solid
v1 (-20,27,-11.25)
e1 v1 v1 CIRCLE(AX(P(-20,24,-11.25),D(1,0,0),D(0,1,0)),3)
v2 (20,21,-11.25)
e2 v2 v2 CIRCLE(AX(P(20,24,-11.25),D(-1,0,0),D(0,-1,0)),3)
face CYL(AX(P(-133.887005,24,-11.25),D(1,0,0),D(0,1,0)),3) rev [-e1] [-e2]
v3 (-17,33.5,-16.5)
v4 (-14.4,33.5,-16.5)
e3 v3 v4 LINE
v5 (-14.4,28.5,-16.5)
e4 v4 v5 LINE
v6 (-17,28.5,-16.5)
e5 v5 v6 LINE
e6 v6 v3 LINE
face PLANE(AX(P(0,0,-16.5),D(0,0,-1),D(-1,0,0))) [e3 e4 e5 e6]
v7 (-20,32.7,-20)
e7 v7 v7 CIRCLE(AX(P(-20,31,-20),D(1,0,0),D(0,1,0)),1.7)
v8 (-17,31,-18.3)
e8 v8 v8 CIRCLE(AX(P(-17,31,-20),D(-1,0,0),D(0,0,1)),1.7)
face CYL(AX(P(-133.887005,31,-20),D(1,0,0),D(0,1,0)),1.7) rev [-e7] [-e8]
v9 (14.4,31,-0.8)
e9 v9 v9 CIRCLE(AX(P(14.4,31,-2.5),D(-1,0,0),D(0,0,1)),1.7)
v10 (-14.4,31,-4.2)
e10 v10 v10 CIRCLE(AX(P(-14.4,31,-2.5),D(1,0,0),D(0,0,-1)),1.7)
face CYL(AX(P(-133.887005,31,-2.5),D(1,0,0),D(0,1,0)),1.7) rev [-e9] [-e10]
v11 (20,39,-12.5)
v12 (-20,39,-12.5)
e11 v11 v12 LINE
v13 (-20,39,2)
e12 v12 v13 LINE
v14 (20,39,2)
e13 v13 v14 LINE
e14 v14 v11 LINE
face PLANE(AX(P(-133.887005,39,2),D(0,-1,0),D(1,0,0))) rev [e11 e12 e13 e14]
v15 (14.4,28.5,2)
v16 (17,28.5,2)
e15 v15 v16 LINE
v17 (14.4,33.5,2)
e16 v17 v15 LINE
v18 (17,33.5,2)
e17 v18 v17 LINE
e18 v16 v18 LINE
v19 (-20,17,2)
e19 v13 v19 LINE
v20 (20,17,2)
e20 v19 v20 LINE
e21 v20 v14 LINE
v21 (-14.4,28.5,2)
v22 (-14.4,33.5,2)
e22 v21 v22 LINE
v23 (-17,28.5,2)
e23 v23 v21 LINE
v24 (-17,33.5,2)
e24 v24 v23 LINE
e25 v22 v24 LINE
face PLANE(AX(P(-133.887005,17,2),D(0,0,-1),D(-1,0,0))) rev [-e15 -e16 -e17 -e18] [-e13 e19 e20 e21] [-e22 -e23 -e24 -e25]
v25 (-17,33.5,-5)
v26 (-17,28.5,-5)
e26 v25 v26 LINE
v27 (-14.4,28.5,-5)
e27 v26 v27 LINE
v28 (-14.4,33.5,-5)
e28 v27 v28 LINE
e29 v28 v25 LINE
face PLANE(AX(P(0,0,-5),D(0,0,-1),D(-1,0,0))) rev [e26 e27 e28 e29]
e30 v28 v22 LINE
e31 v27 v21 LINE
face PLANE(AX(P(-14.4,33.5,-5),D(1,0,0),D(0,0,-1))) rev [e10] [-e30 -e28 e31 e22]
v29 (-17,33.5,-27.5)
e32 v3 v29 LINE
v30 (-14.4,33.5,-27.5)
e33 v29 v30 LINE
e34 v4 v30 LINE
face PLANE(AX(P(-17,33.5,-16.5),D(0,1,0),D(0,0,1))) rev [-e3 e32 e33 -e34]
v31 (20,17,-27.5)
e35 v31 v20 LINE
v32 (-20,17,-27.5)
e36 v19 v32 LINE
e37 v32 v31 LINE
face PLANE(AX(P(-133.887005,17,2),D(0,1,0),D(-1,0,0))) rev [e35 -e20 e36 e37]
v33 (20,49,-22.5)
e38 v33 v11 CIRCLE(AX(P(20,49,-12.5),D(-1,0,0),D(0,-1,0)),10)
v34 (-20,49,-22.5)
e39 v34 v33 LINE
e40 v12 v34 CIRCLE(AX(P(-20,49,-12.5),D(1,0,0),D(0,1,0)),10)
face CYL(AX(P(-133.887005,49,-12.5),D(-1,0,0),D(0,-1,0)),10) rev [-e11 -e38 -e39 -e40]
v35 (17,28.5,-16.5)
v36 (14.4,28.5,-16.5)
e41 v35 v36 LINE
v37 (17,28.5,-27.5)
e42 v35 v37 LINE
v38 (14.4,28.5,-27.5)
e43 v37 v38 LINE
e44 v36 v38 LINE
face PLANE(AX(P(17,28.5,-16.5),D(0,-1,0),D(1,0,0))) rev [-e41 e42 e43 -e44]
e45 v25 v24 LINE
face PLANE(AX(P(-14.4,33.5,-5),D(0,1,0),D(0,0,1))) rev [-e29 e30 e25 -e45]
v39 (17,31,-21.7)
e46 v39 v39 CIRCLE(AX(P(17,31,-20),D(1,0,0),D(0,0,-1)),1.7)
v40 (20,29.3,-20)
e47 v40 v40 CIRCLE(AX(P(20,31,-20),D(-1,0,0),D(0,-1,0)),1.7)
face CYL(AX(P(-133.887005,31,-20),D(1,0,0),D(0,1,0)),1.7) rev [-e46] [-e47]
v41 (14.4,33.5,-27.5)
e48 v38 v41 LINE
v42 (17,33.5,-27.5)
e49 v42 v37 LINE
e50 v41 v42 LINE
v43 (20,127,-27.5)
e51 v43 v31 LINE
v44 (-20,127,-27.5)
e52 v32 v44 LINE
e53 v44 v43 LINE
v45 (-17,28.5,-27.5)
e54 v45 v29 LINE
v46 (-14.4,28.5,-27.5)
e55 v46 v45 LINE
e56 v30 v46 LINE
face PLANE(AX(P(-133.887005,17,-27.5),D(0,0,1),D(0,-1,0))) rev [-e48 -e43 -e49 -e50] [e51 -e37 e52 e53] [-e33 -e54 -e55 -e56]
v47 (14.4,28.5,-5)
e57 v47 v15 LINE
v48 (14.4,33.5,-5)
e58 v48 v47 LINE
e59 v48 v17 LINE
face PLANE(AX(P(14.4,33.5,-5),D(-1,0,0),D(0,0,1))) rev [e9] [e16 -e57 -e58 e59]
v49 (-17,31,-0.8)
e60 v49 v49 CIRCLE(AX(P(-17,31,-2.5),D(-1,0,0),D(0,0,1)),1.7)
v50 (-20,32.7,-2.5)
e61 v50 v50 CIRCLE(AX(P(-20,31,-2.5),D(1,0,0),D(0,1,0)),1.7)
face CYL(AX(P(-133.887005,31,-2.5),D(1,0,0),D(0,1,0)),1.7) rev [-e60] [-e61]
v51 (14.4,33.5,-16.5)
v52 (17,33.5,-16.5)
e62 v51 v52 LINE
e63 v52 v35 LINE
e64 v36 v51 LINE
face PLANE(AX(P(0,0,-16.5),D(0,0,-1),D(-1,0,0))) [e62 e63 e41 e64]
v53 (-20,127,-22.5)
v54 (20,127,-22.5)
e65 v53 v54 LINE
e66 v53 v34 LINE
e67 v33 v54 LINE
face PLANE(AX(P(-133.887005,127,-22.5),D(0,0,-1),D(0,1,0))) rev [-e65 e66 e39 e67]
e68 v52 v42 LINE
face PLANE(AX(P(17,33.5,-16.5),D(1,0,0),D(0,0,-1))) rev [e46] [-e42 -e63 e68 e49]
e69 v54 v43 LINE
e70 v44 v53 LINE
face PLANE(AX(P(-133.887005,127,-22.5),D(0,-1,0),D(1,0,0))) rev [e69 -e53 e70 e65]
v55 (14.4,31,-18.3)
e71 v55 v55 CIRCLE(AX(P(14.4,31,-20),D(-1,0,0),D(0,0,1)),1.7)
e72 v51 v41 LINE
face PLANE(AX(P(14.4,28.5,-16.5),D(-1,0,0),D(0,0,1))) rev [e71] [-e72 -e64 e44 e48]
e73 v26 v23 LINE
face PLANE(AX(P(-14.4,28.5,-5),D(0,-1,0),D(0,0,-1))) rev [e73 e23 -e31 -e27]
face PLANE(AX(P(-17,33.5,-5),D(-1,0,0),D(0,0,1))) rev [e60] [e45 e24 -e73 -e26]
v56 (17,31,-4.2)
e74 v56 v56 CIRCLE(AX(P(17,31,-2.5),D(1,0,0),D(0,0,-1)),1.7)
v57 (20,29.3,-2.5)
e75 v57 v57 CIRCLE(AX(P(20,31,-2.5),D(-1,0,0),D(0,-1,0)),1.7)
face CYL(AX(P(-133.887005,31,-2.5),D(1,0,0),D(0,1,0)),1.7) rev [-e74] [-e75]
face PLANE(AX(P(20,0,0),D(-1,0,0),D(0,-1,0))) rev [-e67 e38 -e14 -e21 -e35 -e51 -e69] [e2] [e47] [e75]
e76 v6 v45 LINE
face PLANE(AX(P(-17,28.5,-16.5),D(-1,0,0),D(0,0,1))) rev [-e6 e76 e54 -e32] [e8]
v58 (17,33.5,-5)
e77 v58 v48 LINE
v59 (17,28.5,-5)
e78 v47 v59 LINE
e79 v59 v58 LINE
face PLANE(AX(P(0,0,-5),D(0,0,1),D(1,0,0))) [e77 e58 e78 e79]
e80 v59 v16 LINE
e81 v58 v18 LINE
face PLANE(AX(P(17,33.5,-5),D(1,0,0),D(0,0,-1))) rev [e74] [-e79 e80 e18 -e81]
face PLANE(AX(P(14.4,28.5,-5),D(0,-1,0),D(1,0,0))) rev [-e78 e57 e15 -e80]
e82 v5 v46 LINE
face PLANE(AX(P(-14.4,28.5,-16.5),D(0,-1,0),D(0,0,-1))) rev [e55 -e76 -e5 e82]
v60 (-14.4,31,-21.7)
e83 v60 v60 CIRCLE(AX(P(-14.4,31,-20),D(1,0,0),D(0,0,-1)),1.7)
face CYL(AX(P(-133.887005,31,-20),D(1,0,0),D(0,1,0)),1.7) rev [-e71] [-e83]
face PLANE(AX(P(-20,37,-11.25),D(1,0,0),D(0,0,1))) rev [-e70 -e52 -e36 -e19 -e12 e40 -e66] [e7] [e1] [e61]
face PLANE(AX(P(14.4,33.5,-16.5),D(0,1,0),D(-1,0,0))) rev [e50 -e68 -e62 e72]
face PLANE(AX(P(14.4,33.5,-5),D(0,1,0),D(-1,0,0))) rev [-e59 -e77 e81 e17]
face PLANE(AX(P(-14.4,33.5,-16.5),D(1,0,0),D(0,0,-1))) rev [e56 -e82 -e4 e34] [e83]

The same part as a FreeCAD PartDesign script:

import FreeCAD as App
import Part
import Sketcher

V = App.Vector


def edges_at(feature, points):
    """Names of the edges that pass closest to the given points."""
    edges = feature.Shape.Edges
    near = lambda p: min(range(len(edges)), key=lambda i: edges[i].distToShape(Part.Vertex(*p))[0])
    return sorted({f"Edge{near(p) + 1}" for p in points})


def add_polygon(sketch, points):
    """Adds a closed chain of lines whose ends are joined by coincident constraints."""
    first, n = sketch.GeometryCount, len(points)
    for a, b in zip(points, points[1:] + points[:1]):
        sketch.addGeometry(Part.LineSegment(App.Vector(*a, 0), App.Vector(*b, 0)), False)
    for i in range(n):
        sketch.addConstraint(Sketcher.Constraint("Coincident", first + i, 2, first + (i + 1) % n, 1))

doc = App.newDocument("Part")
params = doc.addObject("Spreadsheet::Sheet", "Params")
for row, (alias, value) in enumerate([
    ("sketch1_diameter", "6 mm"),
    ("sketch1_diameter2", "3.4 mm"),
    ("sketch1_width", "22 mm"),
    ("sketch1_width2", "88 mm"),
    ("sketch1_height", "5 mm"),
    ("pad1_length", "40 mm"),
    ("fillet_radius", "10 mm"),
    ("sketch2_height", "5 mm"),
    ("sketch2_width", "2.6 mm"),
    ("pocket1_length", "7 mm"),
    ("sketch3_height", "5 mm"),
    ("sketch3_width", "2.6 mm"),
    ("pocket2_length", "11 mm"),
], start=1):
    params.set(f"A{row}", alias)
    params.set(f"B{row}", "=" + value)
    params.setAlias(f"B{row}", alias)

body = doc.addObject("PartDesign::Body", "Body")

sketch1 = doc.addObject("Sketcher::SketchObject", "Sketch")
body.addObject(sketch1)
sketch1.AttachmentSupport = (doc.YZ_Plane, [""])
sketch1.MapMode = "FlatFace"
sketch1.AttachmentOffset = App.Placement(V(0, 0, 20), App.Rotation())
add_polygon(sketch1, [(17, -27.5), (17, 2), (39, 2), (39, -22.5), (127, -22.5), (127, -27.5)])
sketch1.addGeometry(Part.Circle(V(24, -11.2, 0), V(0, 0, 1), 3), False)
sketch1.addGeometry(Part.Circle(V(31, -2.5, 0), V(0, 0, 1), 1.7), False)
sketch1.addGeometry(Part.Circle(V(31, -20, 0), V(0, 0, 1), 1.7), False)
sketch1.addConstraint([
    Sketcher.Constraint("Vertical", 0),
    Sketcher.Constraint("Horizontal", 1),
    Sketcher.Constraint("Vertical", 2),
    Sketcher.Constraint("Horizontal", 3),
    Sketcher.Constraint("Vertical", 4),
    Sketcher.Constraint("Horizontal", 5),
    Sketcher.Constraint("Equal", 7, 8),
    Sketcher.Constraint("Vertical", 7, 3, 8, 3),
    Sketcher.Constraint("Diameter", 6, 6.0),
    Sketcher.Constraint("Diameter", 7, 3.4),
    Sketcher.Constraint("DistanceX", 1, 1, 1, 2, 22.0),
    Sketcher.Constraint("DistanceX", 3, 1, 3, 2, 88.0),
    Sketcher.Constraint("DistanceY", 4, 2, 4, 1, 5.0),
    Sketcher.Constraint("DistanceY", 0, 1, 0, 2, 29.5),
    Sketcher.Constraint("DistanceX", -1, 1, 6, 3, 24.0),
    Sketcher.Constraint("DistanceX", -1, 1, 7, 3, 31.0),
    Sketcher.Constraint("DistanceY", 8, 3, -1, 1, 20.0),
    Sketcher.Constraint("DistanceX", -1, 1, 0, 2, 17.0),
    Sketcher.Constraint("DistanceY", -1, 1, 0, 2, 2.0),
    Sketcher.Constraint("DistanceY", 2, 2, 7, 3, 20.0),
    Sketcher.Constraint("DistanceY", 6, 3, -1, 1, 11.25),
])
sketch1.setExpression("Constraints[14]", "Params.sketch1_diameter")
sketch1.setExpression("Constraints[15]", "Params.sketch1_diameter2")
sketch1.setExpression("Constraints[16]", "Params.sketch1_width")
sketch1.setExpression("Constraints[17]", "Params.sketch1_width2")
sketch1.setExpression("Constraints[18]", "Params.sketch1_height")
pad1 = doc.addObject("PartDesign::Pad", "Pad")
body.addObject(pad1)
pad1.Profile = sketch1
pad1.setExpression("Length", "Params.pad1_length")
pad1.Reversed = True
doc.recompute()

fillet = doc.addObject("PartDesign::Fillet", "Fillet")
body.addObject(fillet)
fillet.Base = (pad1, edges_at(pad1, [(0, 39, -22.5)]))
fillet.setExpression("Radius", "Params.fillet_radius")

sketch2 = doc.addObject("Sketcher::SketchObject", "Sketch001")
body.addObject(sketch2)
sketch2.AttachmentSupport = (doc.XY_Plane, [""])
sketch2.MapMode = "FlatFace"
sketch2.AttachmentOffset = App.Placement(V(0, 0, 2), App.Rotation())
add_polygon(sketch2, [(14.4, 33.5), (14.4, 28.5), (17, 28.5), (17, 33.5)])
add_polygon(sketch2, [(-17, 33.5), (-17, 28.5), (-14.4, 28.5), (-14.4, 33.5)])
sketch2.addConstraint([
    Sketcher.Constraint("Vertical", 0),
    Sketcher.Constraint("Horizontal", 1),
    Sketcher.Constraint("Vertical", 2),
    Sketcher.Constraint("Horizontal", 3),
    Sketcher.Constraint("Vertical", 4),
    Sketcher.Constraint("Horizontal", 5),
    Sketcher.Constraint("Vertical", 6),
    Sketcher.Constraint("Horizontal", 7),
    Sketcher.Constraint("Symmetric", 1, 2, 4, 2, -2),
    Sketcher.Constraint("Symmetric", 3, 2, 6, 2, -2),
    Sketcher.Constraint("DistanceY", 0, 2, 0, 1, 5.0),
    Sketcher.Constraint("DistanceX", 1, 1, 1, 2, 2.6),
    Sketcher.Constraint("DistanceX", -1, 1, 1, 2, 17.0),
    Sketcher.Constraint("DistanceY", -1, 1, 0, 2, 28.5),
])
sketch2.setExpression("Constraints[18]", "Params.sketch2_height")
sketch2.setExpression("Constraints[19]", "Params.sketch2_width")
pocket1 = doc.addObject("PartDesign::Pocket", "Pocket")
body.addObject(pocket1)
pocket1.Profile = sketch2
pocket1.setExpression("Length", "Params.pocket1_length")

sketch3 = doc.addObject("Sketcher::SketchObject", "Sketch002")
body.addObject(sketch3)
sketch3.AttachmentSupport = (doc.XY_Plane, [""])
sketch3.MapMode = "FlatFace"
sketch3.AttachmentOffset = App.Placement(V(0, 0, -27.5), App.Rotation())
add_polygon(sketch3, [(-14.4, 33.5), (-14.4, 28.5), (-17, 28.5), (-17, 33.5)])
add_polygon(sketch3, [(17, 33.5), (17, 28.5), (14.4, 28.5), (14.4, 33.5)])
sketch3.addConstraint([
    Sketcher.Constraint("Vertical", 0),
    Sketcher.Constraint("Horizontal", 1),
    Sketcher.Constraint("Vertical", 2),
    Sketcher.Constraint("Horizontal", 3),
    Sketcher.Constraint("Vertical", 4),
    Sketcher.Constraint("Horizontal", 5),
    Sketcher.Constraint("Vertical", 6),
    Sketcher.Constraint("Horizontal", 7),
    Sketcher.Constraint("Symmetric", 1, 2, 4, 2, -2),
    Sketcher.Constraint("Symmetric", 3, 2, 6, 2, -2),
    Sketcher.Constraint("DistanceY", 0, 2, 0, 1, 5.0),
    Sketcher.Constraint("DistanceX", 1, 2, 1, 1, 2.6),
    Sketcher.Constraint("DistanceX", 1, 2, -1, 1, 17.0),
    Sketcher.Constraint("DistanceY", -1, 1, 0, 2, 28.5),
])
sketch3.setExpression("Constraints[18]", "Params.sketch3_height")
sketch3.setExpression("Constraints[19]", "Params.sketch3_width")
pocket2 = doc.addObject("PartDesign::Pocket", "Pocket001")
body.addObject(pocket2)
pocket2.Profile = sketch3
pocket2.setExpression("Length", "Params.pocket2_length")
pocket2.Reversed = True

doc.recompute()
